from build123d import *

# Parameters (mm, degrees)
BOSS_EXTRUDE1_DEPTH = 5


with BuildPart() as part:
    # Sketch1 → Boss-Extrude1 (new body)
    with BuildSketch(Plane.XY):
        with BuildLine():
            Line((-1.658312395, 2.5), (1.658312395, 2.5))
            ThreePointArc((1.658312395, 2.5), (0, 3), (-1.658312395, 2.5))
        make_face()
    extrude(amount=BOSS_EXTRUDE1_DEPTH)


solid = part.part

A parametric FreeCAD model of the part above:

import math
import FreeCAD as App
import Part
import Sketcher

doc = App.newDocument("Part")
params = doc.addObject("Spreadsheet::Sheet", "Params")
for row, (alias, value) in enumerate([
    ("sketch1_radius", "3 mm"),
    ("pad1_length", "5 mm"),
], start=1):
    params.set(f"A{row}", alias)
    params.set(f"B{row}", "=" + value)
    params.setAlias(f"B{row}", alias)

body = doc.addObject("PartDesign::Body", "Body")

# Sketch on XY plane
sketch1 = body.newObject("Sketcher::SketchObject", "Sketch")
sketch1.AttachmentSupport = (doc.getObject("XY_Plane"), [""])
sketch1.MapMode = "FlatFace"
sketch1.addGeometry(Part.LineSegment(App.Vector(-1.658312, 2.5, 0), App.Vector(1.658312, 2.5, 0)), False)
sketch1.addGeometry(Part.ArcOfCircle(Part.Circle(App.Vector(0, 0, 0), App.Vector(0, 0, 1), 3), math.radians(56.44269), math.radians(123.55731)), False)
sketch1.addConstraint(Sketcher.Constraint("Coincident", 0, 1, 1, 2))
sketch1.addConstraint(Sketcher.Constraint("Coincident", 1, 1, 0, 2))
sketch1.addConstraint(Sketcher.Constraint("Horizontal", 0))
sketch1.addConstraint(Sketcher.Constraint("Coincident", 1, 3, -1, 1))
sketch1.addConstraint(Sketcher.Constraint("Radius", 1, 3.0))
sketch1.addConstraint(Sketcher.Constraint("DistanceY", -1, 1, 0, 1, 2.5))
sketch1.setExpression("Constraints[4]", "Params.sketch1_radius")
pad1 = body.newObject("PartDesign::Pad", "Pad")
pad1.Profile = sketch1
pad1.setExpression("Length", "Params.pad1_length")

doc.recompute()
